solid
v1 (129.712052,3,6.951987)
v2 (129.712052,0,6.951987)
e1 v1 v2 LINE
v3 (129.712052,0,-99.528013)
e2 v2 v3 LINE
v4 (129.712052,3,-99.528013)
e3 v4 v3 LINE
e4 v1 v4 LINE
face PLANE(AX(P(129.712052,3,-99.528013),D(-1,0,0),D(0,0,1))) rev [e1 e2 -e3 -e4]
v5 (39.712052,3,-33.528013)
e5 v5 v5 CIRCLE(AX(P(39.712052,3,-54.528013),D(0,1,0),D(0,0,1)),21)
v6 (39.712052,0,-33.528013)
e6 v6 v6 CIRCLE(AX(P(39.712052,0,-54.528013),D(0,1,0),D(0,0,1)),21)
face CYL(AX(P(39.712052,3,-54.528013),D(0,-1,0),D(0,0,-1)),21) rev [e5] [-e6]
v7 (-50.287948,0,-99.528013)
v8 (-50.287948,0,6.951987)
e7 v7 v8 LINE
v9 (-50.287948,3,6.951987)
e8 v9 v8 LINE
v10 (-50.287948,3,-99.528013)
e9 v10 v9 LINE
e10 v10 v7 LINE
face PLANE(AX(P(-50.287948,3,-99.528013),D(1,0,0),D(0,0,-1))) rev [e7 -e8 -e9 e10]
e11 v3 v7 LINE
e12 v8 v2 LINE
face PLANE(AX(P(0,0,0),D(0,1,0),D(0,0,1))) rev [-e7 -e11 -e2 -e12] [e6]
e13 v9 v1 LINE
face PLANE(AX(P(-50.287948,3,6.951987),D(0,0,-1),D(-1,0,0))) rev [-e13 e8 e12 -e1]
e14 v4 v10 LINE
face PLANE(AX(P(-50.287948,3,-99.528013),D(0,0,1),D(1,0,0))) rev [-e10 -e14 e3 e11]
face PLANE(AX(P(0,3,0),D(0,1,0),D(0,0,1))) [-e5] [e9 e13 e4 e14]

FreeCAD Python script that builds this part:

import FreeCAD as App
import Part
import Sketcher
from FreeCAD import Vector


def add_polygon(sketch, points):
    """Adds a closed chain of lines whose ends are joined by coincident constraints."""
    first, n = sketch.GeometryCount, len(points)
    for a, b in zip(points, points[1:] + points[:1]):
        sketch.addGeometry(Part.LineSegment(App.Vector(*a, 0), App.Vector(*b, 0)), False)
    for i in range(n):
        sketch.addConstraint(Sketcher.Constraint("Coincident", first + i, 2, first + (i + 1) % n, 1))

doc = App.newDocument("Part")
body = doc.addObject("PartDesign::Body", "Body")

sketch1 = body.newObject("Sketcher::SketchObject", "Sketch")
sketch1.AttachmentSupport = (doc.getObject("XZ_Plane"), [""])
sketch1.MapMode = "FlatFace"
add_polygon(sketch1, [(-50, -100), (-50, 7), (130, 7), (130, -100)])
sketch1.addGeometry(Part.Circle(Vector(40, -55, 0), Vector(0, 0, 1), 21), False)
sketch1.addConstraint(Sketcher.Constraint("Vertical", 0))
sketch1.addConstraint(Sketcher.Constraint("Horizontal", 1))
sketch1.addConstraint(Sketcher.Constraint("Vertical", 2))
sketch1.addConstraint(Sketcher.Constraint("Horizontal", 3))
sketch1.addConstraint(Sketcher.Constraint("Diameter", 4, 42.0))
sketch1.addConstraint(Sketcher.Constraint("DistanceX", 1, 1, 1, 2, 180.0))
sketch1.addConstraint(Sketcher.Constraint("DistanceX", 0, 2, 4, 3, 90.0))
sketch1.addConstraint(Sketcher.Constraint("DistanceY", 2, 2, 4, 3, 45.0))
sketch1.addConstraint(Sketcher.Constraint("DistanceY", 0, 1, 0, 2, 106.48))
sketch1.addConstraint(Sketcher.Constraint("DistanceX", -1, 1, 4, 3, 39.712052))
sketch1.addConstraint(Sketcher.Constraint("DistanceY", 4, 3, -1, 1, 54.528013))
pad1 = body.newObject("PartDesign::Pad", "Pad")
pad1.Profile = sketch1
pad1.Length = 3
pad1.Reversed = True

doc.recompute()
